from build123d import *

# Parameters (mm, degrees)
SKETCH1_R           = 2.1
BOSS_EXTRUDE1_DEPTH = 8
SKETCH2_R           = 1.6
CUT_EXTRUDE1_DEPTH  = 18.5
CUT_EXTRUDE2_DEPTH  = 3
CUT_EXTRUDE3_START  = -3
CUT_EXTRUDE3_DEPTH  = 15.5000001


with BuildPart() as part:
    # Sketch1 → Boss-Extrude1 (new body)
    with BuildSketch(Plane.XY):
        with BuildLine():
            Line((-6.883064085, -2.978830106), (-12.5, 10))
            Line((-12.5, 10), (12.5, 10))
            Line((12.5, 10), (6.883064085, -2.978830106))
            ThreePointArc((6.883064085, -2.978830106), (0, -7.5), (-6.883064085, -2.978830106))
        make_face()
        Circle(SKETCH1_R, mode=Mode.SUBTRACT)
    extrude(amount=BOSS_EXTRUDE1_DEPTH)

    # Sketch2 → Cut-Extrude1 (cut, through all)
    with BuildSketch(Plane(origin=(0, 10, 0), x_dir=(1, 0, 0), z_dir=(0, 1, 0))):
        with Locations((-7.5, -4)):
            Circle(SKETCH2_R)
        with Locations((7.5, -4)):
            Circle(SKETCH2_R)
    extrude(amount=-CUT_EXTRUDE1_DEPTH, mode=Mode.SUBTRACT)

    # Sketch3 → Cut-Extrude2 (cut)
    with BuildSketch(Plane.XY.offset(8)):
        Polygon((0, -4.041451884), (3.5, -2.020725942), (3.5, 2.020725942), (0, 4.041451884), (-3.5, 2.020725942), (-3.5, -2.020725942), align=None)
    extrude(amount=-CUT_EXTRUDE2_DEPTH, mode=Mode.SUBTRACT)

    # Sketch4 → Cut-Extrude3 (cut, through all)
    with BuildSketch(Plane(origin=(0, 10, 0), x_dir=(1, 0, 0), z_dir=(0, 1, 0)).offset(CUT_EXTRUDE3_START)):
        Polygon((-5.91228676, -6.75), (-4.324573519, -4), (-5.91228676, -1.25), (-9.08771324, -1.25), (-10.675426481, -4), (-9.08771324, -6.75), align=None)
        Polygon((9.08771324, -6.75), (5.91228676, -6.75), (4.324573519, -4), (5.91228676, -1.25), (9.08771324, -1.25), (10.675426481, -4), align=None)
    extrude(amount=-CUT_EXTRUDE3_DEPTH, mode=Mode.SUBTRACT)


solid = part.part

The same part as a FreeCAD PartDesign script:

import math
import FreeCAD as App
import Part
import Sketcher

V = App.Vector
Q = App.Units.Quantity

doc = App.newDocument("Part")
body = doc.addObject("PartDesign::Body", "Body")

# Sketch on XY plane
sketch1 = body.newObject("Sketcher::SketchObject", "Sketch")
sketch1.AttachmentSupport = (doc.getObject("XY_Plane"), [""])
sketch1.MapMode = "FlatFace"
sketch1.addGeometry([
    Part.LineSegment(V(-12.5, 10, 0), V(-6.9, -3, 0)),  # 0
    Part.ArcOfCircle(Part.Circle(V(0, 0, 0), V(0, 0, 1), 7.5), math.radians(-157), math.radians(-23)),  # 1
    Part.LineSegment(V(6.9, -3, 0), V(12.5, 10, 0)),  # 2
    Part.LineSegment(V(12.5, 10, 0), V(-12.5, 10, 0)),  # 3
    Part.Circle(V(0, 0, 0), V(0, 0, 1), 2.1),  # 4
], False)
sketch1.addConstraint([
    Sketcher.Constraint("Tangent", 0, 2, 1, 1),
    Sketcher.Constraint("Tangent", 1, 2, 2, 1),
    Sketcher.Constraint("Coincident", 2, 2, 3, 1),
    Sketcher.Constraint("Coincident", 3, 2, 0, 1),
    Sketcher.Constraint("Horizontal", 3),
    Sketcher.Constraint("Coincident", 1, 3, -1, 1),
    Sketcher.Constraint("Coincident", 4, 3, -1, 1),
    Sketcher.Constraint("Horizontal", 0, 2, 1, 2),
    Sketcher.Constraint("Diameter", 4, 4.2),
    Sketcher.Constraint("Radius", 1, 7.5),
    Sketcher.Constraint("DistanceX", 3, 2, 3, 1, 25.0),
    Sketcher.Constraint("DistanceY", -1, 1, 2, 2, 10.0),
])
pad1 = body.newObject("PartDesign::Pad", "Pad")
pad1.Profile = sketch1
pad1.Length = 8

# Sketch on XZ plane
sketch2 = body.newObject("Sketcher::SketchObject", "Sketch001")
sketch2.AttachmentSupport = (doc.getObject("XZ_Plane"), [""])
sketch2.MapMode = "FlatFace"
sketch2.AttachmentOffset = App.Placement(V(0, 0, -10), App.Rotation())
sketch2.addGeometry([
    Part.Circle(V(-7.5, 4, 0), V(0, 0, 1), 1.6),
    Part.Circle(V(7.5, 4, 0), V(0, 0, 1), 1.6),
], False)
sketch2.addConstraint([
    Sketcher.Constraint("Equal", 0, 1),
    Sketcher.Constraint("Symmetric", 0, 3, 1, 3, -2),
    Sketcher.Constraint("Diameter", 0, 3.2),
    Sketcher.Constraint("DistanceY", -1, 1, 0, 3, 4.0),
    Sketcher.Constraint("DistanceX", 0, 3, 1, 3, 15.0),
])
pocket1 = body.newObject("PartDesign::Pocket", "Pocket")
pocket1.Profile = sketch2
pocket1.Type = "ThroughAll"
pocket1.Reversed = True

# Sketch on XY plane
sketch3 = body.newObject("Sketcher::SketchObject", "Sketch002")
sketch3.AttachmentSupport = (doc.getObject("XY_Plane"), [""])
sketch3.MapMode = "FlatFace"
sketch3.AttachmentOffset = App.Placement(V(0, 0, 8), App.Rotation())
sketch3.addGeometry([
    Part.LineSegment(V(0, -4, 0), V(3.5, -2, 0)),  # 0
    Part.LineSegment(V(3.5, -2, 0), V(3.5, 2, 0)),  # 1
    Part.LineSegment(V(3.5, 2, 0), V(0, 4, 0)),  # 2
    Part.LineSegment(V(0, 4, 0), V(-3.5, 2, 0)),  # 3
    Part.LineSegment(V(-3.5, 2, 0), V(-3.5, -2, 0)),  # 4
    Part.LineSegment(V(-3.5, -2, 0), V(0, -4, 0)),  # 5
], False)
sketch3.addConstraint([
    Sketcher.Constraint("Coincident", 0, 2, 1, 1),
    Sketcher.Constraint("Coincident", 1, 2, 2, 1),
    Sketcher.Constraint("Coincident", 2, 2, 3, 1),
    Sketcher.Constraint("Coincident", 3, 2, 4, 1),
    Sketcher.Constraint("Coincident", 4, 2, 5, 1),
    Sketcher.Constraint("Coincident", 5, 2, 0, 1),
    Sketcher.Constraint("Vertical", 1),
    Sketcher.Constraint("Vertical", 4),
    Sketcher.Constraint("Symmetric", 0, 2, 3, 2, -1, 1),
    Sketcher.Constraint("Symmetric", 2, 2, 5, 2, -1, 1),
    Sketcher.Constraint("PointOnObject", 2, 2, -2),
    Sketcher.Constraint("Parallel", 2, 5),
    Sketcher.Constraint("Horizontal", 1, 2, 3, 2),
    Sketcher.Constraint("Angle", 0, Q("30 deg")),
    Sketcher.Constraint("DistanceX", 3, 2, 1, 2, 7.0),
    Sketcher.Constraint("DistanceY", 1, 1, 1, 2, 4.041452),
])
pocket2 = body.newObject("PartDesign::Pocket", "Pocket001")
pocket2.Profile = sketch3
pocket2.Length = 3

# Sketch on XZ plane
sketch4 = body.newObject("Sketcher::SketchObject", "Sketch003")
sketch4.AttachmentSupport = (doc.getObject("XZ_Plane"), [""])
sketch4.MapMode = "FlatFace"
sketch4.AttachmentOffset = App.Placement(V(0, 0, -7), App.Rotation())
sketch4.addGeometry([
    Part.LineSegment(V(-5.9, 6.8, 0), V(-4.3, 4, 0)),  # 0
    Part.LineSegment(V(-4.3, 4, 0), V(-5.9, 1.2, 0)),  # 1
    Part.LineSegment(V(-5.9, 1.2, 0), V(-9.1, 1.2, 0)),  # 2
    Part.LineSegment(V(-9.1, 1.2, 0), V(-10.7, 4, 0)),  # 3
    Part.LineSegment(V(-10.7, 4, 0), V(-9.1, 6.8, 0)),  # 4
    Part.LineSegment(V(-9.1, 6.8, 0), V(-5.9, 6.8, 0)),  # 5
    Part.LineSegment(V(5.9, 6.8, 0), V(9.1, 6.8, 0)),  # 6
    Part.LineSegment(V(9.1, 6.8, 0), V(10.7, 4, 0)),  # 7
    Part.LineSegment(V(10.7, 4, 0), V(9.1, 1.2, 0)),  # 8
    Part.LineSegment(V(9.1, 1.2, 0), V(5.9, 1.2, 0)),  # 9
    Part.LineSegment(V(5.9, 1.2, 0), V(4.3, 4, 0)),  # 10
    Part.LineSegment(V(4.3, 4, 0), V(5.9, 6.8, 0)),  # 11
], False)
sketch4.addConstraint([
    Sketcher.Constraint("Coincident", 0, 2, 1, 1),
    Sketcher.Constraint("Coincident", 1, 2, 2, 1),
    Sketcher.Constraint("Coincident", 2, 2, 3, 1),
    Sketcher.Constraint("Coincident", 3, 2, 4, 1),
    Sketcher.Constraint("Coincident", 4, 2, 5, 1),
    Sketcher.Constraint("Coincident", 5, 2, 0, 1),
    Sketcher.Constraint("Coincident", 6, 2, 7, 1),
    Sketcher.Constraint("Coincident", 7, 2, 8, 1),
    Sketcher.Constraint("Coincident", 8, 2, 9, 1),
    Sketcher.Constraint("Coincident", 9, 2, 10, 1),
    Sketcher.Constraint("Coincident", 10, 2, 11, 1),
    Sketcher.Constraint("Coincident", 11, 2, 6, 1),
    Sketcher.Constraint("Horizontal", 2),
    Sketcher.Constraint("Horizontal", 5),
    Sketcher.Constraint("Horizontal", 6),
    Sketcher.Constraint("Horizontal", 9),
    Sketcher.Constraint("Symmetric", 4, 2, 6, 2, -2),
    Sketcher.Constraint("Symmetric", 3, 2, 7, 2, -2),
    Sketcher.Constraint("Symmetric", 2, 2, 8, 2, -2),
    Sketcher.Constraint("Symmetric", 0, 2, 10, 2, -2),
    Sketcher.Constraint("Parallel", 0, 3),
    Sketcher.Constraint("Parallel", 1, 4),
    Sketcher.Constraint("Parallel", 3, 7),
    Sketcher.Constraint("Parallel", 7, 10),
    Sketcher.Constraint("Parallel", 8, 11),
    Sketcher.Constraint("Horizontal", 0, 2, 3, 2),
    Sketcher.Constraint("Vertical", 2, 2, 4, 2),
    Sketcher.Constraint("Angle", 0, Q("-60 deg")),
    Sketcher.Constraint("DistanceY", -1, 1, 0, 2, 4.0),
    Sketcher.Constraint("DistanceX", 5, 2, 6, 2, 15.0),
    Sketcher.Constraint("DistanceY", 2, 2, 4, 2, 5.5),
    Sketcher.Constraint("DistanceX", 2, 2, 2, 1, 3.175426),
])
pocket3 = body.newObject("PartDesign::Pocket", "Pocket002")
pocket3.Profile = sketch4
pocket3.Type = "ThroughAll"
pocket3.Reversed = True

doc.recompute()
